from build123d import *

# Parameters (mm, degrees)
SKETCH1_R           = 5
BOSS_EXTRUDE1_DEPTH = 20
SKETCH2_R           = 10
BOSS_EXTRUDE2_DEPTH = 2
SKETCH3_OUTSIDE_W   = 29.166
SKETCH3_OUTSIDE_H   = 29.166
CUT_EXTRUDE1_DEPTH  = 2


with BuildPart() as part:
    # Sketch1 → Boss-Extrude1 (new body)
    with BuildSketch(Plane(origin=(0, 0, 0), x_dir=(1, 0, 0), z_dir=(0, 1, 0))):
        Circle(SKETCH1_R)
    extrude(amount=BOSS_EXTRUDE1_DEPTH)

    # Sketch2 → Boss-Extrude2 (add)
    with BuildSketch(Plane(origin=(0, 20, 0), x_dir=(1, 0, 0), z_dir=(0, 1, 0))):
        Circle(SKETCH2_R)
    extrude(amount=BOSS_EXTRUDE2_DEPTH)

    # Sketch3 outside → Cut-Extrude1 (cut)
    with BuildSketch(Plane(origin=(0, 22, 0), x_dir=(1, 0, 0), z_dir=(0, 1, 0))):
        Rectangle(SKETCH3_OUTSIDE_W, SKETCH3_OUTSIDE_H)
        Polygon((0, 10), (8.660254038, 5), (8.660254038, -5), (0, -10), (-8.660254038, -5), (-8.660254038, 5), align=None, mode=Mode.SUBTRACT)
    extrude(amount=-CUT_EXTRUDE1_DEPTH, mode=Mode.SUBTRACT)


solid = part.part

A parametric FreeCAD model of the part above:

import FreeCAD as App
import Part
import Sketcher
Q = App.Units.Quantity


def add_polygon(sketch, points):
    """Adds a closed chain of lines whose ends are joined by coincident constraints."""
    first, n = sketch.GeometryCount, len(points)
    for a, b in zip(points, points[1:] + points[:1]):
        sketch.addGeometry(Part.LineSegment(App.Vector(*a, 0), App.Vector(*b, 0)), False)
    for i in range(n):
        sketch.addConstraint(Sketcher.Constraint("Coincident", first + i, 2, first + (i + 1) % n, 1))

doc = App.newDocument("Part")
params = doc.addObject("Spreadsheet::Sheet", "Params")
for row, (alias, value) in enumerate([
    ("sketch1_diameter", "10 mm"),
    ("pad1_length", "20 mm"),
    ("sketch2_diameter", "20 mm"),
    ("pad2_length", "2 mm"),
    ("sketch3_height", "10 mm"),
    ("sketch3_length", "10 mm"),
    ("pocket1_length", "2 mm"),
], start=1):
    params.set(f"A{row}", alias)
    params.set(f"B{row}", "=" + value)
    params.setAlias(f"B{row}", alias)

body = doc.addObject("PartDesign::Body", "Body")

# Sketch on XZ plane
sketch1 = body.newObject("Sketcher::SketchObject", "Sketch")
sketch1.AttachmentSupport = (doc.getObject("XZ_Plane"), [""])
sketch1.MapMode = "FlatFace"
sketch1.addGeometry(Part.Circle(App.Vector(0, 0, 0), App.Vector(0, 0, 1), 5), False)
sketch1.addConstraint([
    Sketcher.Constraint("Coincident", 0, 3, -1, 1),
    Sketcher.Constraint("Diameter", 0, Q("10 mm")),
])
sketch1.setExpression("Constraints[1]", "Params.sketch1_diameter")
pad1 = body.newObject("PartDesign::Pad", "Pad")
pad1.Profile = sketch1
pad1.setExpression("Length", "Params.pad1_length")
pad1.Reversed = True

# Sketch on XZ plane
sketch2 = body.newObject("Sketcher::SketchObject", "Sketch001")
sketch2.AttachmentSupport = (doc.getObject("XZ_Plane"), [""])
sketch2.MapMode = "FlatFace"
sketch2.AttachmentOffset = App.Placement(App.Vector(0, 0, -20), App.Rotation())
sketch2.addGeometry(Part.Circle(App.Vector(0, 0, 0), App.Vector(0, 0, 1), 10), False)
sketch2.addConstraint([
    Sketcher.Constraint("Coincident", 0, 3, -1, 1),
    Sketcher.Constraint("Diameter", 0, Q("20 mm")),
])
sketch2.setExpression("Constraints[1]", "Params.sketch2_diameter")
pad2 = body.newObject("PartDesign::Pad", "Pad001")
pad2.Profile = sketch2
pad2.setExpression("Length", "Params.pad2_length")
pad2.Reversed = True

# Sketch on XZ plane
sketch3 = body.newObject("Sketcher::SketchObject", "Sketch002")
sketch3.AttachmentSupport = (doc.getObject("XZ_Plane"), [""])
sketch3.MapMode = "FlatFace"
sketch3.AttachmentOffset = App.Placement(App.Vector(0, 0, -22), App.Rotation())
add_polygon(sketch3, [(-14.583, -14.583), (-14.583, 14.583), (14.583, 14.583), (14.583, -14.583)])  # lines 0-3
add_polygon(sketch3, [(-8.660254, -5), (0, -10), (8.660254, -5), (8.660254, 5), (0, 10), (-8.660254, 5)])  # lines 4-9
sketch3.addConstraint([
    Sketcher.Constraint("Vertical", 0),
    Sketcher.Constraint("Horizontal", 1),
    Sketcher.Constraint("Vertical", 2),
    Sketcher.Constraint("Horizontal", 3),
    Sketcher.Constraint("Vertical", 6),
    Sketcher.Constraint("Vertical", 9),
    Sketcher.Constraint("Symmetric", 0, 2, 2, 2, -1, 1),
    Sketcher.Constraint("Symmetric", 4, 2, 7, 2, -1, 1),
    Sketcher.Constraint("Symmetric", 5, 2, 8, 2, -1, 1),
    Sketcher.Constraint("PointOnObject", 4, 2, -2),
    Sketcher.Constraint("Parallel", 4, 7),
    Sketcher.Constraint("Horizontal", 6, 2, 8, 2),
    Sketcher.Constraint("Equal", 3, 0),
    Sketcher.Constraint("DistanceY", 6, 1, 6, 2, Q("10 mm")),
    Sketcher.Constraint("Angle", 4, Q("-30 deg")),
    Sketcher.Constraint("Distance", 4, Q("10 mm")),
    Sketcher.Constraint("DistanceX", 1, 1, 1, 2, Q("29.166 mm")),
])
sketch3.setExpression("Constraints[23]", "Params.sketch3_height")
sketch3.setExpression("Constraints[25]", "Params.sketch3_length")
pocket1 = body.newObject("PartDesign::Pocket", "Pocket")
pocket1.Profile = sketch3
pocket1.setExpression("Length", "Params.pocket1_length")
pocket1.Reversed = True

doc.recompute()
